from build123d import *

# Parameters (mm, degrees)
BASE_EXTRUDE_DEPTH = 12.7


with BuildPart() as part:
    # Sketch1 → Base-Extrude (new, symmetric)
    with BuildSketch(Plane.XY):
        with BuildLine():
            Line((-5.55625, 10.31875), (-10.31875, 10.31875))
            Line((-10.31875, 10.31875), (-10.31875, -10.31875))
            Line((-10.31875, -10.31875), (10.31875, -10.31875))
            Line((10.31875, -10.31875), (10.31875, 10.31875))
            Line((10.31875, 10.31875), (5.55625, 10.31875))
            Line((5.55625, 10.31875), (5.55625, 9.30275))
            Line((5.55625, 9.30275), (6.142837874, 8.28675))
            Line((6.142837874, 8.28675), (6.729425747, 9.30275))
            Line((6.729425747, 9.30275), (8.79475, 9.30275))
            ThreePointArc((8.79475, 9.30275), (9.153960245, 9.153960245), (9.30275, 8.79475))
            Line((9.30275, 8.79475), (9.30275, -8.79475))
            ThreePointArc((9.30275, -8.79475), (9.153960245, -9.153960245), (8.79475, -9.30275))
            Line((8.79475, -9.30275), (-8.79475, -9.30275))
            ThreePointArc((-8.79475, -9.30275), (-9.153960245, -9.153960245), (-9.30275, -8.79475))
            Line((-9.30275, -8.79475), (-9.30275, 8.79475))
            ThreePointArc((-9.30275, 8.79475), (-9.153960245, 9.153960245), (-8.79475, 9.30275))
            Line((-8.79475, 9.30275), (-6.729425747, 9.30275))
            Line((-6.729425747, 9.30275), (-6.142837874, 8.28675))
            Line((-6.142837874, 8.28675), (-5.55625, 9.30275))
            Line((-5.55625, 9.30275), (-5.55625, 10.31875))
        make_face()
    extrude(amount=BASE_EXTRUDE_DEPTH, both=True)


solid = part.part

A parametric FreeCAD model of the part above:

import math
import FreeCAD as App
import Part
import Sketcher
from FreeCAD import Vector
Q = App.Units.Quantity

doc = App.newDocument("Part")
body = doc.addObject("PartDesign::Body", "Body")

sketch1 = body.newObject("Sketcher::SketchObject", "Sketch")
sketch1.AttachmentSupport = (doc.getObject("XY_Plane"), [""])
sketch1.MapMode = "FlatFace"
sketch1.addGeometry([
    Part.LineSegment(Vector(-5.6, 10.3, 0), Vector(-10.3, 10.3, 0)),
    Part.LineSegment(Vector(-10.3, 10.3, 0), Vector(-10.3, -10.3, 0)),
    Part.LineSegment(Vector(-10.3, -10.3, 0), Vector(10.3, -10.3, 0)),
    Part.LineSegment(Vector(10.3, -10.3, 0), Vector(10.3, 10.3, 0)),
    Part.LineSegment(Vector(10.3, 10.3, 0), Vector(5.6, 10.3, 0)),
    Part.LineSegment(Vector(5.6, 10.3, 0), Vector(5.6, 9.3, 0)),
    Part.LineSegment(Vector(5.6, 9.3, 0), Vector(6.1, 8.3, 0)),
    Part.LineSegment(Vector(6.1, 8.3, 0), Vector(6.7, 9.3, 0)),
    Part.LineSegment(Vector(6.7, 9.3, 0), Vector(8.8, 9.3, 0)),
    Part.ArcOfCircle(Part.Circle(Vector(8.8, 8.8, 0), Vector(0, 0, 1), 0.5), math.radians(0), math.radians(90)),
    Part.LineSegment(Vector(9.3, 8.8, 0), Vector(9.3, -8.8, 0)),
    Part.ArcOfCircle(Part.Circle(Vector(8.8, -8.8, 0), Vector(0, 0, 1), 0.5), math.radians(-90), math.radians(0)),
    Part.LineSegment(Vector(8.8, -9.3, 0), Vector(-8.8, -9.3, 0)),
    Part.ArcOfCircle(Part.Circle(Vector(-8.8, -8.8, 0), Vector(0, 0, 1), 0.5), math.radians(180), math.radians(270)),
    Part.LineSegment(Vector(-9.3, -8.8, 0), Vector(-9.3, 8.8, 0)),
    Part.ArcOfCircle(Part.Circle(Vector(-8.8, 8.8, 0), Vector(0, 0, 1), 0.5), math.radians(90), math.radians(180)),
    Part.LineSegment(Vector(-8.8, 9.3, 0), Vector(-6.7, 9.3, 0)),
    Part.LineSegment(Vector(-6.7, 9.3, 0), Vector(-6.1, 8.3, 0)),
    Part.LineSegment(Vector(-6.1, 8.3, 0), Vector(-5.6, 9.3, 0)),
    Part.LineSegment(Vector(-5.6, 9.3, 0), Vector(-5.6, 10.3, 0)),
], False)
sketch1.addConstraint([
    Sketcher.Constraint("Coincident", 0, 2, 1, 1),
    Sketcher.Constraint("Coincident", 1, 2, 2, 1),
    Sketcher.Constraint("Coincident", 2, 2, 3, 1),
    Sketcher.Constraint("Coincident", 3, 2, 4, 1),
    Sketcher.Constraint("Coincident", 4, 2, 5, 1),
    Sketcher.Constraint("Coincident", 5, 2, 6, 1),
    Sketcher.Constraint("Coincident", 6, 2, 7, 1),
    Sketcher.Constraint("Coincident", 7, 2, 8, 1),
    Sketcher.Constraint("Tangent", 8, 2, 9, 2),
    Sketcher.Constraint("Tangent", 9, 1, 10, 1),
    Sketcher.Constraint("Tangent", 10, 2, 11, 2),
    Sketcher.Constraint("Tangent", 11, 1, 12, 1),
    Sketcher.Constraint("Tangent", 12, 2, 13, 2),
    Sketcher.Constraint("Tangent", 13, 1, 14, 1),
    Sketcher.Constraint("Tangent", 14, 2, 15, 2),
    Sketcher.Constraint("Tangent", 15, 1, 16, 1),
    Sketcher.Constraint("Coincident", 16, 2, 17, 1),
    Sketcher.Constraint("Coincident", 17, 2, 18, 1),
    Sketcher.Constraint("Coincident", 18, 2, 19, 1),
    Sketcher.Constraint("Coincident", 19, 2, 0, 1),
    Sketcher.Constraint("Horizontal", 0),
    Sketcher.Constraint("Vertical", 1),
    Sketcher.Constraint("Horizontal", 2),
    Sketcher.Constraint("Vertical", 3),
    Sketcher.Constraint("Horizontal", 4),
    Sketcher.Constraint("Vertical", 5),
    Sketcher.Constraint("Horizontal", 8),
    Sketcher.Constraint("Vertical", 10),
    Sketcher.Constraint("Horizontal", 12),
    Sketcher.Constraint("Vertical", 14),
    Sketcher.Constraint("Horizontal", 16),
    Sketcher.Constraint("Vertical", 19),
    Sketcher.Constraint("Equal", 9, 11),
    Sketcher.Constraint("Equal", 11, 13),
    Sketcher.Constraint("Equal", 13, 15),
    Sketcher.Constraint("Symmetric", 9, 3, 13, 3, -1, 1),
    Sketcher.Constraint("Symmetric", 0, 2, 2, 2, -1, 1),
    Sketcher.Constraint("Symmetric", 7, 2, 16, 2, -2),
    Sketcher.Constraint("Symmetric", 6, 2, 17, 2, -2),
    Sketcher.Constraint("Symmetric", 5, 2, 18, 2, -2),
    Sketcher.Constraint("Parallel", 6, 17),
    Sketcher.Constraint("Horizontal", 0, 2, 3, 2),
    Sketcher.Constraint("Horizontal", 5, 2, 7, 2),
    Sketcher.Constraint("Equal", 2, 1),
    Sketcher.Constraint("Equal", 12, 10),
    Sketcher.Constraint("Radius", 9, Q("0.02 in")),
    Sketcher.Constraint("Angle", 6, Q("-60 deg")),
    Sketcher.Constraint("DistanceY", 5, 2, 5, 1, Q("0.04 in")),
    Sketcher.Constraint("DistanceX", 0, 2, 0, 1, Q("0.1875 in")),
    Sketcher.Constraint("DistanceX", 2, 1, 2, 2, Q("0.8125 in")),
    Sketcher.Constraint("DistanceY", 6, 2, 5, 2, Q("0.04 in")),
])
pad1 = body.newObject("PartDesign::Pad", "Pad")
pad1.Profile = sketch1
pad1.Length = Q("1 in")
pad1.Midplane = True

doc.recompute()
